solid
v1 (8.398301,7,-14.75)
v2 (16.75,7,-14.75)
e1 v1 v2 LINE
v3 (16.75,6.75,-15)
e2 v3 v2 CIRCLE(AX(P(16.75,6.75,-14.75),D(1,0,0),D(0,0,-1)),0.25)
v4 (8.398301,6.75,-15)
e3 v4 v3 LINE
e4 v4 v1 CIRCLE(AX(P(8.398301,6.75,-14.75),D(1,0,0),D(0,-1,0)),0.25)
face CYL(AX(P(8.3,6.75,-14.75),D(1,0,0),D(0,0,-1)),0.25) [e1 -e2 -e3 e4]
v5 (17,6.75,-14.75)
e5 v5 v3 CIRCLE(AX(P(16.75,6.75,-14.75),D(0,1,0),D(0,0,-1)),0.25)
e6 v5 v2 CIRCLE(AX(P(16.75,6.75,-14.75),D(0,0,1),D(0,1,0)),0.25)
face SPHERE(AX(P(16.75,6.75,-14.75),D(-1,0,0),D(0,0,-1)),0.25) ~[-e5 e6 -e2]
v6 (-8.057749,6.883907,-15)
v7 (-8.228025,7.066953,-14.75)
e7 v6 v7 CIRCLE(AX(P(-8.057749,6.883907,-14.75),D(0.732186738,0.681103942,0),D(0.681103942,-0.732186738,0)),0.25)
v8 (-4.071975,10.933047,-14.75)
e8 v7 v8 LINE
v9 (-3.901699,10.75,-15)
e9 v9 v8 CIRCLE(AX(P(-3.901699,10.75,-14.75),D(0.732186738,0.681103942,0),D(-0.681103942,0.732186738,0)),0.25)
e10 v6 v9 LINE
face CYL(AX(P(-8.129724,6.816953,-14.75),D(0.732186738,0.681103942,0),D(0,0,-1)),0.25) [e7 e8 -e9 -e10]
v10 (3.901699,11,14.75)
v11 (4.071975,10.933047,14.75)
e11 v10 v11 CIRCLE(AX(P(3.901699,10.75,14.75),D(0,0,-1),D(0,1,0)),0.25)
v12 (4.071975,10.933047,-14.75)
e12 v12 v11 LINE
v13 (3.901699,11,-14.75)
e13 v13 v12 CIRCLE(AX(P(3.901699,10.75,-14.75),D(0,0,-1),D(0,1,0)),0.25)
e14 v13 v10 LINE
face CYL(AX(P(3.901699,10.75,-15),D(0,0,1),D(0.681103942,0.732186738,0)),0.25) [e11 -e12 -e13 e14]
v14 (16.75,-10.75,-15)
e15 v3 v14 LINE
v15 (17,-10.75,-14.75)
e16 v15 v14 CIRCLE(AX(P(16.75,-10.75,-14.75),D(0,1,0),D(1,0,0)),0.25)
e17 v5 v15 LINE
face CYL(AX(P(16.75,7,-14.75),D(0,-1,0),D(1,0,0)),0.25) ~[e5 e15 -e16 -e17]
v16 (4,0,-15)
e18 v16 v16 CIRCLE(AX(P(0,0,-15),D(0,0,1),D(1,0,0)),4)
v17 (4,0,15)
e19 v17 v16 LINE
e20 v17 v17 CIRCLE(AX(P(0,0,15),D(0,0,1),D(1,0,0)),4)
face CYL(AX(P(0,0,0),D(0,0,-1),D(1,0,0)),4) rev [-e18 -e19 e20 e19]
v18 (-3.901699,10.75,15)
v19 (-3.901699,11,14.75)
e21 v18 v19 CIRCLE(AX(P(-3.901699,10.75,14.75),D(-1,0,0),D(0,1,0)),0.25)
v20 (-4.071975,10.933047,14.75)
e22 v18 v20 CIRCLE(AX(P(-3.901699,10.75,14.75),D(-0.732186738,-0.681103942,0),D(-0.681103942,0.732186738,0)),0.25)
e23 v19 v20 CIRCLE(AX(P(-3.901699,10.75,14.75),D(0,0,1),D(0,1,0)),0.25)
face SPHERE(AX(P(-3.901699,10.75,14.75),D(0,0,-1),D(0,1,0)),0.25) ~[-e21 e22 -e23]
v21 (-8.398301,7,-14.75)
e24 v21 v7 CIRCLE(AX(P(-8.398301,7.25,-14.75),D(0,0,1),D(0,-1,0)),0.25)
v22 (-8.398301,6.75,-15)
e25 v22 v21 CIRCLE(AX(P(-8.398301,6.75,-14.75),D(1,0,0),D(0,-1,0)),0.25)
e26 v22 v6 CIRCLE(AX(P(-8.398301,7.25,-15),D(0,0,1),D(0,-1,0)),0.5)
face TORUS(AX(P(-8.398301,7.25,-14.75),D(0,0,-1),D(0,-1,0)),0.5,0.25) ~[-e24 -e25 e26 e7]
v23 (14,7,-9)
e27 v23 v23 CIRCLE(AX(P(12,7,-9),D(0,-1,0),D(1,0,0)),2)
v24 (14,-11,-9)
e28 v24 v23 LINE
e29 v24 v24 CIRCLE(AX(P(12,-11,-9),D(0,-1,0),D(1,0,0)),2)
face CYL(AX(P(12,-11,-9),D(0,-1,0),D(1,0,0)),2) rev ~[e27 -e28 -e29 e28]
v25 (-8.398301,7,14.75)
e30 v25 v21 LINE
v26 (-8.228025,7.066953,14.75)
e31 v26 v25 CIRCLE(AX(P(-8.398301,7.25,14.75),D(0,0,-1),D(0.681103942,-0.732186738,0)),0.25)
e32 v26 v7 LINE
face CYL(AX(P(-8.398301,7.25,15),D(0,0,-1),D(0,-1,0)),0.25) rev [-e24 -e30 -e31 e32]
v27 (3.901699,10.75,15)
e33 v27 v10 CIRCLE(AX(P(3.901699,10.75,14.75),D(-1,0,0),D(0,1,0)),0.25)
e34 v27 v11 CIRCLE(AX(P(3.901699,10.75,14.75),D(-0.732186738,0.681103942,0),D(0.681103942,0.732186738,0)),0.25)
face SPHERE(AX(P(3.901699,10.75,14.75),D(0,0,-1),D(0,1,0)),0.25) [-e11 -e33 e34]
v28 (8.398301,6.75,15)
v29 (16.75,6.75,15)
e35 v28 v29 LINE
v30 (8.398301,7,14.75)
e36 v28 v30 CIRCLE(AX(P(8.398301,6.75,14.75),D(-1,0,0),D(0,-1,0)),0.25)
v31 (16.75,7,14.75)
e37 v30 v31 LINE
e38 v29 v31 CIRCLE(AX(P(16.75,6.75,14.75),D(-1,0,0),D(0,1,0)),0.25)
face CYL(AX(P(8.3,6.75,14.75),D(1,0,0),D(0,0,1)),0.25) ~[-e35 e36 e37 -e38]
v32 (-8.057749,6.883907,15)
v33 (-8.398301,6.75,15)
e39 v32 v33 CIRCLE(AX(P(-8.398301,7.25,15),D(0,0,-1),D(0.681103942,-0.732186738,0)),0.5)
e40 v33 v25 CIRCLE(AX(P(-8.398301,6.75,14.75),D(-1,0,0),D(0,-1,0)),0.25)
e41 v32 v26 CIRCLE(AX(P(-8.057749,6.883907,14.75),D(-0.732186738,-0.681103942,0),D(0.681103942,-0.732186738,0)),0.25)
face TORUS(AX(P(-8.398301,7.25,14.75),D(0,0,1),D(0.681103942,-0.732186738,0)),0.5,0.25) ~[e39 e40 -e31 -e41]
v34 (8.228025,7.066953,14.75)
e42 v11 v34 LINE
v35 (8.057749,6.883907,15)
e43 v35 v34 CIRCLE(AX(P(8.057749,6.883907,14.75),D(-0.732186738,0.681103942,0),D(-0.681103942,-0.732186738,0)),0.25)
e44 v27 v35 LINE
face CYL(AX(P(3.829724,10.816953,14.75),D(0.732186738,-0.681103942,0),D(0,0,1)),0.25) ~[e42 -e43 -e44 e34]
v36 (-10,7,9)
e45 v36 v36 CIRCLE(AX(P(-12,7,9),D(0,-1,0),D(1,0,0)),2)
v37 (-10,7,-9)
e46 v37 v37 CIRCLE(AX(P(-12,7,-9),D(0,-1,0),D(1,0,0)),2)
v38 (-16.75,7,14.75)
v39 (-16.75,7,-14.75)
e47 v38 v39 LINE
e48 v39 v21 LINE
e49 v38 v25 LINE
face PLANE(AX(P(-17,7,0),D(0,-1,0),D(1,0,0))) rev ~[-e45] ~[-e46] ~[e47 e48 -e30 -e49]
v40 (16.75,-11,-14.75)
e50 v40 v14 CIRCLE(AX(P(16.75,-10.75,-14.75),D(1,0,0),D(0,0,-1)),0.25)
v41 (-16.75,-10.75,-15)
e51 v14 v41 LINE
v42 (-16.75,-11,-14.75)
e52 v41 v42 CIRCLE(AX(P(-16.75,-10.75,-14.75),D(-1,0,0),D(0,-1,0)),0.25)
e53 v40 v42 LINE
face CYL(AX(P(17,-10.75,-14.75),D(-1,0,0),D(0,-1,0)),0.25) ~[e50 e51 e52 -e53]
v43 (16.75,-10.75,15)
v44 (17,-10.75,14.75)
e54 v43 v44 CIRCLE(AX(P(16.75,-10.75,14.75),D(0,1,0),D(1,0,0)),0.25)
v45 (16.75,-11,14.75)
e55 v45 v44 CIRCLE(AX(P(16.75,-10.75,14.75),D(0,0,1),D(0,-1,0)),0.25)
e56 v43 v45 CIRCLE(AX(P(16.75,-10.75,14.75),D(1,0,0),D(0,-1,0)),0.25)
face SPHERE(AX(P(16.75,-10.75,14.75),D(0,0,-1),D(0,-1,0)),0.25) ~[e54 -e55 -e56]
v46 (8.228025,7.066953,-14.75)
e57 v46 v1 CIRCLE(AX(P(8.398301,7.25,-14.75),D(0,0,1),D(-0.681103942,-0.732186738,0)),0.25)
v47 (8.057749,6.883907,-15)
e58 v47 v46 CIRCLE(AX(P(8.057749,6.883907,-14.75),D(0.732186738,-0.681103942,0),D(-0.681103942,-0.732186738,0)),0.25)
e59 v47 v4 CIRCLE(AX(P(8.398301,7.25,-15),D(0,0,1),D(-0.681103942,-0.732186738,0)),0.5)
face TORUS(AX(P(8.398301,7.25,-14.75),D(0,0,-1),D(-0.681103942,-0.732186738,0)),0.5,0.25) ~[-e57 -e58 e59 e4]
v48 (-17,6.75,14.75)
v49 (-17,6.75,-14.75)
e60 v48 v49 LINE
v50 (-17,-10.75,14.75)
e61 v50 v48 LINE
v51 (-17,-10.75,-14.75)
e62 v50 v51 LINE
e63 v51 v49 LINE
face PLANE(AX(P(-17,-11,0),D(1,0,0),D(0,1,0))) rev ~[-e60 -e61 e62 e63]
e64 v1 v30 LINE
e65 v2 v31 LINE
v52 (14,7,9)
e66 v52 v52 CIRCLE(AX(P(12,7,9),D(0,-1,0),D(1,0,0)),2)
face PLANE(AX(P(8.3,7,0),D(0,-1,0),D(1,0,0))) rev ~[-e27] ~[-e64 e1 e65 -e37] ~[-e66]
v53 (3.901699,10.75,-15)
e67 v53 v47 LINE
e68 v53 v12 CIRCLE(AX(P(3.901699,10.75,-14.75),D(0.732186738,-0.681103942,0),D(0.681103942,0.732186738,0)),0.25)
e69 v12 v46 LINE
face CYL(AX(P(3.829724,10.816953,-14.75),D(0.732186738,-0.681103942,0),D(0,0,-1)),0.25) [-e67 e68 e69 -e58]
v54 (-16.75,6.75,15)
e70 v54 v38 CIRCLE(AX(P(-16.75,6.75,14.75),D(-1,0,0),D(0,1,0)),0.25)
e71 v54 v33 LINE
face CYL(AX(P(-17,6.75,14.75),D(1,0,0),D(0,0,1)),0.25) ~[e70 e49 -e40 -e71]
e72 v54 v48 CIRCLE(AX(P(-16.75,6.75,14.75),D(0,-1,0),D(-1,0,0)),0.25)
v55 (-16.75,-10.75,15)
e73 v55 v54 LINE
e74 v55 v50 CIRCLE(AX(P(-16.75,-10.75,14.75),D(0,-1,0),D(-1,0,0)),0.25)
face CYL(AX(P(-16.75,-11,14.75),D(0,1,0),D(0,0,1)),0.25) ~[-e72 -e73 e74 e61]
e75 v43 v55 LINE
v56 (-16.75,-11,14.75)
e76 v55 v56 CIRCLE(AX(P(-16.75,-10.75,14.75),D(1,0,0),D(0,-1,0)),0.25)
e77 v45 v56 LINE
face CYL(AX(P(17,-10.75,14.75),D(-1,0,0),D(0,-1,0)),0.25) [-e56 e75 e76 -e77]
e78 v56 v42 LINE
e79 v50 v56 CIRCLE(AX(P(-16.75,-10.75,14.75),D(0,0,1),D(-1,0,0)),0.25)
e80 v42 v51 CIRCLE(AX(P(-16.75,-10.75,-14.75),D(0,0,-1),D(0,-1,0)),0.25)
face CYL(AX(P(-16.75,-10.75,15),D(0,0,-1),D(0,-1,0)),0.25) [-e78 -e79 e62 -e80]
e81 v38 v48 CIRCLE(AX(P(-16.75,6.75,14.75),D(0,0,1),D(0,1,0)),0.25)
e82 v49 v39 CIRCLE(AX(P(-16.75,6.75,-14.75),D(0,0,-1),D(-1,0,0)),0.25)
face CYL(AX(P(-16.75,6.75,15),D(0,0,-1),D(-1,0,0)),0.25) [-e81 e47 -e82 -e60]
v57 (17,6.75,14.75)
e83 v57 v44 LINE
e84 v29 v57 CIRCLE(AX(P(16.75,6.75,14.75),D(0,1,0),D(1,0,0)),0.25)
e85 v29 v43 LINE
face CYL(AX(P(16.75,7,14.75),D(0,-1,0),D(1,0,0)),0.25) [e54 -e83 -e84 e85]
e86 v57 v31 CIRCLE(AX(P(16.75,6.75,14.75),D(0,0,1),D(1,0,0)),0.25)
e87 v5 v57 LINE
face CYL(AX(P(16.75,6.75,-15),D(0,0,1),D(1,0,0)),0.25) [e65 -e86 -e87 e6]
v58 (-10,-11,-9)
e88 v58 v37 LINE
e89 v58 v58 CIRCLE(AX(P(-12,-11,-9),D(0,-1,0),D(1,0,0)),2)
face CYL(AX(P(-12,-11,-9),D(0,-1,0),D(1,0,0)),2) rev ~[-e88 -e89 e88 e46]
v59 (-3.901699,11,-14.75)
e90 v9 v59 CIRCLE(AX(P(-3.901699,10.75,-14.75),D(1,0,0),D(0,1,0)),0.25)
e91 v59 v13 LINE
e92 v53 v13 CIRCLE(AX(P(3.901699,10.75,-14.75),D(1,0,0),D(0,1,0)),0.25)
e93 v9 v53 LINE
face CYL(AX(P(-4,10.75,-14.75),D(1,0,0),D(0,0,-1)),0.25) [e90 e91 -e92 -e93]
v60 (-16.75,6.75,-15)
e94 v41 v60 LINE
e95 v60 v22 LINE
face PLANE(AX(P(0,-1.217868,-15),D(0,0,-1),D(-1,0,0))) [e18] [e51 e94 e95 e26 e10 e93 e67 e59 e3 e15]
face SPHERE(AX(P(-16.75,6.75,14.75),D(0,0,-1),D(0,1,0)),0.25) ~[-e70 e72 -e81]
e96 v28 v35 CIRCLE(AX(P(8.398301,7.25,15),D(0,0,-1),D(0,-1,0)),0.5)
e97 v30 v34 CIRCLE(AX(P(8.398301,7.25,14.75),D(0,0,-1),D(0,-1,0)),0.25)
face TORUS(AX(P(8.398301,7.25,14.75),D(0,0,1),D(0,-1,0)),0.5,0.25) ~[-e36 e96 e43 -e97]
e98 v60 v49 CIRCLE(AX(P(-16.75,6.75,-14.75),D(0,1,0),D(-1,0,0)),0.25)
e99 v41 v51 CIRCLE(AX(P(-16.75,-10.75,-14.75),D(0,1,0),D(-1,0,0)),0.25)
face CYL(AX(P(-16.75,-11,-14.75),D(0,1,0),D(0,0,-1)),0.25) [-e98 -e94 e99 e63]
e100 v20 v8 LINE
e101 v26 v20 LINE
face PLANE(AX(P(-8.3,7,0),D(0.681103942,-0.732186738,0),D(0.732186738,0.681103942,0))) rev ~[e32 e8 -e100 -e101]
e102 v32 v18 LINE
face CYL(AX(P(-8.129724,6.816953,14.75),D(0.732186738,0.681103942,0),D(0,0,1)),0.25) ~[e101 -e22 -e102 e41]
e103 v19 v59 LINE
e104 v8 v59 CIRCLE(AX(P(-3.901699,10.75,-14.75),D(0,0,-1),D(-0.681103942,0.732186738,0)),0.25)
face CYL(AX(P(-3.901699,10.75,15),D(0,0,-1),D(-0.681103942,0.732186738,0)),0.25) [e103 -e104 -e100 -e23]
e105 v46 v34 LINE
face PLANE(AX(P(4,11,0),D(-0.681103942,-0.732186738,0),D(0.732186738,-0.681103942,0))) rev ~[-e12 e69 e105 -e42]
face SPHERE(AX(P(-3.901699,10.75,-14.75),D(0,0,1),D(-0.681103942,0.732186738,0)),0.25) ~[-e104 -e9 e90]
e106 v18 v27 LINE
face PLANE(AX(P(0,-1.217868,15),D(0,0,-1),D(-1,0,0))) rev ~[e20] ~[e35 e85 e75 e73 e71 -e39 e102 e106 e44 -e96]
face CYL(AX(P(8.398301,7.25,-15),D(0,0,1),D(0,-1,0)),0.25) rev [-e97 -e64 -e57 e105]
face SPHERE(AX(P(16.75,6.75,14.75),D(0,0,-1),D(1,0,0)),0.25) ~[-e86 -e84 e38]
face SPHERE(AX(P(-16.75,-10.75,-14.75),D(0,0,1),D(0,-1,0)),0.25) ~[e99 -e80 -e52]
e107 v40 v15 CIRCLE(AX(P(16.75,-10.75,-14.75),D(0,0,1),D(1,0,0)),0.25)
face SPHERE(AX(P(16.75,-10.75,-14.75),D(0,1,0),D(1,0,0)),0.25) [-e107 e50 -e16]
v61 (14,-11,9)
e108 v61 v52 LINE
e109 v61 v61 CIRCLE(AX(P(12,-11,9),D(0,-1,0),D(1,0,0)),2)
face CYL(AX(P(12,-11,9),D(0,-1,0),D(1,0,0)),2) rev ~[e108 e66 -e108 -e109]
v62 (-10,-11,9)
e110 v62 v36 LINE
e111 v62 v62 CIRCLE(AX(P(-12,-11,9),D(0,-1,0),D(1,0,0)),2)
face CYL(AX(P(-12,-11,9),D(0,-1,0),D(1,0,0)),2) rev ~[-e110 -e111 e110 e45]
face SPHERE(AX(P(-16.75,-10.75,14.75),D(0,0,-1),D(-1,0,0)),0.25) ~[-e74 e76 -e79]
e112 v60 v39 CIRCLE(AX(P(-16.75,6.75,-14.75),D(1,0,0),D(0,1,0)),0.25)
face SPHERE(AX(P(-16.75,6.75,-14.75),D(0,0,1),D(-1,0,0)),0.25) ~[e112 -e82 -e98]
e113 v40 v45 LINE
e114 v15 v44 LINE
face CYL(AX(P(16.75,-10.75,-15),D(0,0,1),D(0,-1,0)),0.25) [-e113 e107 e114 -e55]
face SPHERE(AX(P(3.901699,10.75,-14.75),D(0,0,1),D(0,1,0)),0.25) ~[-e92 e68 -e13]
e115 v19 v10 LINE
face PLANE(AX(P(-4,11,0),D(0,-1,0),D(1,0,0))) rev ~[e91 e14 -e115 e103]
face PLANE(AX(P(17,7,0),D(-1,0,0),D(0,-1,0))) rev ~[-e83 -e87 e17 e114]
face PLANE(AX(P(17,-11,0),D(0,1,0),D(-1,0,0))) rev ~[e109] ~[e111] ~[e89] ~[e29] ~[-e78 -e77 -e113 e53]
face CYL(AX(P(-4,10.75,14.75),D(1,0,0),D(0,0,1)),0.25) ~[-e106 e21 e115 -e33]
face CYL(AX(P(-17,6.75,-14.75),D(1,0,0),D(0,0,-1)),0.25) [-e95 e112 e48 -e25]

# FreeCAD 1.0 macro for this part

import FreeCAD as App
import Part
import Sketcher

V = App.Vector


def edges_at(feature, points):
    """Names of the edges that pass closest to the given points."""
    edges = feature.Shape.Edges
    near = lambda p: min(range(len(edges)), key=lambda i: edges[i].distToShape(Part.Vertex(*p))[0])
    return sorted({f"Edge{near(p) + 1}" for p in points})


def add_polygon(sketch, points):
    """Adds a closed chain of lines whose ends are joined by coincident constraints."""
    first, n = sketch.GeometryCount, len(points)
    for a, b in zip(points, points[1:] + points[:1]):
        sketch.addGeometry(Part.LineSegment(App.Vector(*a, 0), App.Vector(*b, 0)), False)
    for i in range(n):
        sketch.addConstraint(Sketcher.Constraint("Coincident", first + i, 2, first + (i + 1) % n, 1))

doc = App.newDocument("Part")
body = doc.addObject("PartDesign::Body", "Body")

sketch1 = doc.addObject("Sketcher::SketchObject", "Sketch")
body.addObject(sketch1)
sketch1.AttachmentSupport = (doc.XY_Plane, [""])
sketch1.MapMode = "FlatFace"
add_polygon(sketch1, [(-17, -11), (17, -11), (17, 7), (8.3, 7), (4, 11), (-4, 11), (-8.3, 7), (-17, 7)])
sketch1.addGeometry(Part.Circle(V(0, 0, 0), V(0, 0, 1), 4), False)
sketch1.addConstraint([
    Sketcher.Constraint("Horizontal", 0),
    Sketcher.Constraint("Vertical", 1),
    Sketcher.Constraint("Horizontal", 2),
    Sketcher.Constraint("Horizontal", 4),
    Sketcher.Constraint("Horizontal", 6),
    Sketcher.Constraint("Vertical", 7),
    Sketcher.Constraint("Coincident", 8, 3, -1, 1),
    Sketcher.Constraint("Symmetric", 2, 2, 5, 2, -2),
    Sketcher.Constraint("Equal", 2, 6),
    Sketcher.Constraint("Equal", 3, 5),
    Sketcher.Constraint("Diameter", 8, 8.0),
    Sketcher.Constraint("DistanceX", 0, 1, 0, 2, 34.0),
    Sketcher.Constraint("DistanceX", 4, 2, 4, 1, 8.0),
    Sketcher.Constraint("DistanceY", 1, 1, 1, 2, 18.0),
    Sketcher.Constraint("DistanceX", 2, 2, 2, 1, 8.7),
    Sketcher.Constraint("DistanceY", 0, 2, -1, 1, 11.0),
    Sketcher.Constraint("DistanceY", -1, 1, 3, 2, 11.0),
])
pad1 = doc.addObject("PartDesign::Pad", "Pad")
body.addObject(pad1)
pad1.Profile = sketch1
pad1.Length = 30
pad1.Midplane = True

sketch2 = doc.addObject("Sketcher::SketchObject", "Sketch001")
body.addObject(sketch2)
sketch2.AttachmentSupport = (doc.XZ_Plane, [""])
sketch2.MapMode = "FlatFace"
sketch2.AttachmentOffset = App.Placement(V(0, 0, 11), App.Rotation())
sketch2.addGeometry(Part.Circle(V(12, 9, 0), V(0, 0, 1), 2), False)
sketch2.addConstraint([
    Sketcher.Constraint("Diameter", 0, 4.0),
    Sketcher.Constraint("DistanceX", -1, 1, 0, 3, 12.0),
    Sketcher.Constraint("DistanceY", -1, 1, 0, 3, 9.0),
])
pocket1 = doc.addObject("PartDesign::Pocket", "Pocket")
body.addObject(pocket1)
pocket1.Profile = sketch2
pocket1.Type = "UpToFirst"

sketch3 = doc.addObject("Sketcher::SketchObject", "Sketch002")
body.addObject(sketch3)
sketch3.AttachmentSupport = (doc.XZ_Plane, [""])
sketch3.MapMode = "FlatFace"
sketch3.AttachmentOffset = App.Placement(V(0, 0, 11), App.Rotation())
sketch3.addGeometry(Part.Circle(V(-12, 9, 0), V(0, 0, 1), 2), False)
sketch3.addConstraint([
    Sketcher.Constraint("Diameter", 0, 4.0),
    Sketcher.Constraint("DistanceX", 0, 3, -1, 1, 12.0),
    Sketcher.Constraint("DistanceY", -1, 1, 0, 3, 9.0),
])
pocket2 = doc.addObject("PartDesign::Pocket", "Pocket001")
body.addObject(pocket2)
pocket2.Profile = sketch3
pocket2.Type = "UpToFirst"

sketch4 = doc.addObject("Sketcher::SketchObject", "Sketch003")
body.addObject(sketch4)
sketch4.AttachmentSupport = (doc.XZ_Plane, [""])
sketch4.MapMode = "FlatFace"
sketch4.AttachmentOffset = App.Placement(V(0, 0, 11), App.Rotation())
sketch4.addGeometry(Part.Circle(V(12, -9, 0), V(0, 0, 1), 2), False)
sketch4.addConstraint([
    Sketcher.Constraint("Diameter", 0, 4.0),
    Sketcher.Constraint("DistanceX", -1, 1, 0, 3, 12.0),
    Sketcher.Constraint("DistanceY", 0, 3, -1, 1, 9.0),
])
pocket3 = doc.addObject("PartDesign::Pocket", "Pocket002")
body.addObject(pocket3)
pocket3.Profile = sketch4
pocket3.Type = "UpToFirst"

sketch5 = doc.addObject("Sketcher::SketchObject", "Sketch004")
body.addObject(sketch5)
sketch5.AttachmentSupport = (doc.XZ_Plane, [""])
sketch5.MapMode = "FlatFace"
sketch5.AttachmentOffset = App.Placement(V(0, 0, 11), App.Rotation())
sketch5.addGeometry(Part.Circle(V(-12, -9, 0), V(0, 0, 1), 2), False)
sketch5.addConstraint([
    Sketcher.Constraint("Diameter", 0, 4.0),
    Sketcher.Constraint("DistanceX", 0, 3, -1, 1, 12.0),
    Sketcher.Constraint("DistanceY", 0, 3, -1, 1, 9.0),
])
pocket4 = doc.addObject("PartDesign::Pocket", "Pocket003")
body.addObject(pocket4)
pocket4.Profile = sketch5
pocket4.Type = "UpToFirst"
doc.recompute()

fillet = doc.addObject("PartDesign::Fillet", "Fillet")
body.addObject(fillet)
fillet.Base = (pocket4, edges_at(pocket4, [
    (0, 11, -15),
    (6.15, 9, -15),
    (12.65, 7, -15),
    (17, -2, -15),
    (6.15, 9, 15),
    (17, -11, 0),
    (-17, -11, 0),
    (-17, 7, 0),
    (-8.3, 7, 0),
    (-4, 11, 0),
    (4, 11, 0),
    (8.3, 7, 0),
    (17, 7, 0),
    (0, 11, 15),
    (-6.15, 9, 15),
    (-12.65, 7, 15),
    (-17, -2, 15),
    (0, -11, 15),
    (17, -2, 15),
    (0, -11, -15),
    (12.65, 7, 15),
    (-17, -2, -15),
    (-12.65, 7, -15),
    (-6.15, 9, -15),
]))
fillet.Radius = 0.25

doc.recompute()
